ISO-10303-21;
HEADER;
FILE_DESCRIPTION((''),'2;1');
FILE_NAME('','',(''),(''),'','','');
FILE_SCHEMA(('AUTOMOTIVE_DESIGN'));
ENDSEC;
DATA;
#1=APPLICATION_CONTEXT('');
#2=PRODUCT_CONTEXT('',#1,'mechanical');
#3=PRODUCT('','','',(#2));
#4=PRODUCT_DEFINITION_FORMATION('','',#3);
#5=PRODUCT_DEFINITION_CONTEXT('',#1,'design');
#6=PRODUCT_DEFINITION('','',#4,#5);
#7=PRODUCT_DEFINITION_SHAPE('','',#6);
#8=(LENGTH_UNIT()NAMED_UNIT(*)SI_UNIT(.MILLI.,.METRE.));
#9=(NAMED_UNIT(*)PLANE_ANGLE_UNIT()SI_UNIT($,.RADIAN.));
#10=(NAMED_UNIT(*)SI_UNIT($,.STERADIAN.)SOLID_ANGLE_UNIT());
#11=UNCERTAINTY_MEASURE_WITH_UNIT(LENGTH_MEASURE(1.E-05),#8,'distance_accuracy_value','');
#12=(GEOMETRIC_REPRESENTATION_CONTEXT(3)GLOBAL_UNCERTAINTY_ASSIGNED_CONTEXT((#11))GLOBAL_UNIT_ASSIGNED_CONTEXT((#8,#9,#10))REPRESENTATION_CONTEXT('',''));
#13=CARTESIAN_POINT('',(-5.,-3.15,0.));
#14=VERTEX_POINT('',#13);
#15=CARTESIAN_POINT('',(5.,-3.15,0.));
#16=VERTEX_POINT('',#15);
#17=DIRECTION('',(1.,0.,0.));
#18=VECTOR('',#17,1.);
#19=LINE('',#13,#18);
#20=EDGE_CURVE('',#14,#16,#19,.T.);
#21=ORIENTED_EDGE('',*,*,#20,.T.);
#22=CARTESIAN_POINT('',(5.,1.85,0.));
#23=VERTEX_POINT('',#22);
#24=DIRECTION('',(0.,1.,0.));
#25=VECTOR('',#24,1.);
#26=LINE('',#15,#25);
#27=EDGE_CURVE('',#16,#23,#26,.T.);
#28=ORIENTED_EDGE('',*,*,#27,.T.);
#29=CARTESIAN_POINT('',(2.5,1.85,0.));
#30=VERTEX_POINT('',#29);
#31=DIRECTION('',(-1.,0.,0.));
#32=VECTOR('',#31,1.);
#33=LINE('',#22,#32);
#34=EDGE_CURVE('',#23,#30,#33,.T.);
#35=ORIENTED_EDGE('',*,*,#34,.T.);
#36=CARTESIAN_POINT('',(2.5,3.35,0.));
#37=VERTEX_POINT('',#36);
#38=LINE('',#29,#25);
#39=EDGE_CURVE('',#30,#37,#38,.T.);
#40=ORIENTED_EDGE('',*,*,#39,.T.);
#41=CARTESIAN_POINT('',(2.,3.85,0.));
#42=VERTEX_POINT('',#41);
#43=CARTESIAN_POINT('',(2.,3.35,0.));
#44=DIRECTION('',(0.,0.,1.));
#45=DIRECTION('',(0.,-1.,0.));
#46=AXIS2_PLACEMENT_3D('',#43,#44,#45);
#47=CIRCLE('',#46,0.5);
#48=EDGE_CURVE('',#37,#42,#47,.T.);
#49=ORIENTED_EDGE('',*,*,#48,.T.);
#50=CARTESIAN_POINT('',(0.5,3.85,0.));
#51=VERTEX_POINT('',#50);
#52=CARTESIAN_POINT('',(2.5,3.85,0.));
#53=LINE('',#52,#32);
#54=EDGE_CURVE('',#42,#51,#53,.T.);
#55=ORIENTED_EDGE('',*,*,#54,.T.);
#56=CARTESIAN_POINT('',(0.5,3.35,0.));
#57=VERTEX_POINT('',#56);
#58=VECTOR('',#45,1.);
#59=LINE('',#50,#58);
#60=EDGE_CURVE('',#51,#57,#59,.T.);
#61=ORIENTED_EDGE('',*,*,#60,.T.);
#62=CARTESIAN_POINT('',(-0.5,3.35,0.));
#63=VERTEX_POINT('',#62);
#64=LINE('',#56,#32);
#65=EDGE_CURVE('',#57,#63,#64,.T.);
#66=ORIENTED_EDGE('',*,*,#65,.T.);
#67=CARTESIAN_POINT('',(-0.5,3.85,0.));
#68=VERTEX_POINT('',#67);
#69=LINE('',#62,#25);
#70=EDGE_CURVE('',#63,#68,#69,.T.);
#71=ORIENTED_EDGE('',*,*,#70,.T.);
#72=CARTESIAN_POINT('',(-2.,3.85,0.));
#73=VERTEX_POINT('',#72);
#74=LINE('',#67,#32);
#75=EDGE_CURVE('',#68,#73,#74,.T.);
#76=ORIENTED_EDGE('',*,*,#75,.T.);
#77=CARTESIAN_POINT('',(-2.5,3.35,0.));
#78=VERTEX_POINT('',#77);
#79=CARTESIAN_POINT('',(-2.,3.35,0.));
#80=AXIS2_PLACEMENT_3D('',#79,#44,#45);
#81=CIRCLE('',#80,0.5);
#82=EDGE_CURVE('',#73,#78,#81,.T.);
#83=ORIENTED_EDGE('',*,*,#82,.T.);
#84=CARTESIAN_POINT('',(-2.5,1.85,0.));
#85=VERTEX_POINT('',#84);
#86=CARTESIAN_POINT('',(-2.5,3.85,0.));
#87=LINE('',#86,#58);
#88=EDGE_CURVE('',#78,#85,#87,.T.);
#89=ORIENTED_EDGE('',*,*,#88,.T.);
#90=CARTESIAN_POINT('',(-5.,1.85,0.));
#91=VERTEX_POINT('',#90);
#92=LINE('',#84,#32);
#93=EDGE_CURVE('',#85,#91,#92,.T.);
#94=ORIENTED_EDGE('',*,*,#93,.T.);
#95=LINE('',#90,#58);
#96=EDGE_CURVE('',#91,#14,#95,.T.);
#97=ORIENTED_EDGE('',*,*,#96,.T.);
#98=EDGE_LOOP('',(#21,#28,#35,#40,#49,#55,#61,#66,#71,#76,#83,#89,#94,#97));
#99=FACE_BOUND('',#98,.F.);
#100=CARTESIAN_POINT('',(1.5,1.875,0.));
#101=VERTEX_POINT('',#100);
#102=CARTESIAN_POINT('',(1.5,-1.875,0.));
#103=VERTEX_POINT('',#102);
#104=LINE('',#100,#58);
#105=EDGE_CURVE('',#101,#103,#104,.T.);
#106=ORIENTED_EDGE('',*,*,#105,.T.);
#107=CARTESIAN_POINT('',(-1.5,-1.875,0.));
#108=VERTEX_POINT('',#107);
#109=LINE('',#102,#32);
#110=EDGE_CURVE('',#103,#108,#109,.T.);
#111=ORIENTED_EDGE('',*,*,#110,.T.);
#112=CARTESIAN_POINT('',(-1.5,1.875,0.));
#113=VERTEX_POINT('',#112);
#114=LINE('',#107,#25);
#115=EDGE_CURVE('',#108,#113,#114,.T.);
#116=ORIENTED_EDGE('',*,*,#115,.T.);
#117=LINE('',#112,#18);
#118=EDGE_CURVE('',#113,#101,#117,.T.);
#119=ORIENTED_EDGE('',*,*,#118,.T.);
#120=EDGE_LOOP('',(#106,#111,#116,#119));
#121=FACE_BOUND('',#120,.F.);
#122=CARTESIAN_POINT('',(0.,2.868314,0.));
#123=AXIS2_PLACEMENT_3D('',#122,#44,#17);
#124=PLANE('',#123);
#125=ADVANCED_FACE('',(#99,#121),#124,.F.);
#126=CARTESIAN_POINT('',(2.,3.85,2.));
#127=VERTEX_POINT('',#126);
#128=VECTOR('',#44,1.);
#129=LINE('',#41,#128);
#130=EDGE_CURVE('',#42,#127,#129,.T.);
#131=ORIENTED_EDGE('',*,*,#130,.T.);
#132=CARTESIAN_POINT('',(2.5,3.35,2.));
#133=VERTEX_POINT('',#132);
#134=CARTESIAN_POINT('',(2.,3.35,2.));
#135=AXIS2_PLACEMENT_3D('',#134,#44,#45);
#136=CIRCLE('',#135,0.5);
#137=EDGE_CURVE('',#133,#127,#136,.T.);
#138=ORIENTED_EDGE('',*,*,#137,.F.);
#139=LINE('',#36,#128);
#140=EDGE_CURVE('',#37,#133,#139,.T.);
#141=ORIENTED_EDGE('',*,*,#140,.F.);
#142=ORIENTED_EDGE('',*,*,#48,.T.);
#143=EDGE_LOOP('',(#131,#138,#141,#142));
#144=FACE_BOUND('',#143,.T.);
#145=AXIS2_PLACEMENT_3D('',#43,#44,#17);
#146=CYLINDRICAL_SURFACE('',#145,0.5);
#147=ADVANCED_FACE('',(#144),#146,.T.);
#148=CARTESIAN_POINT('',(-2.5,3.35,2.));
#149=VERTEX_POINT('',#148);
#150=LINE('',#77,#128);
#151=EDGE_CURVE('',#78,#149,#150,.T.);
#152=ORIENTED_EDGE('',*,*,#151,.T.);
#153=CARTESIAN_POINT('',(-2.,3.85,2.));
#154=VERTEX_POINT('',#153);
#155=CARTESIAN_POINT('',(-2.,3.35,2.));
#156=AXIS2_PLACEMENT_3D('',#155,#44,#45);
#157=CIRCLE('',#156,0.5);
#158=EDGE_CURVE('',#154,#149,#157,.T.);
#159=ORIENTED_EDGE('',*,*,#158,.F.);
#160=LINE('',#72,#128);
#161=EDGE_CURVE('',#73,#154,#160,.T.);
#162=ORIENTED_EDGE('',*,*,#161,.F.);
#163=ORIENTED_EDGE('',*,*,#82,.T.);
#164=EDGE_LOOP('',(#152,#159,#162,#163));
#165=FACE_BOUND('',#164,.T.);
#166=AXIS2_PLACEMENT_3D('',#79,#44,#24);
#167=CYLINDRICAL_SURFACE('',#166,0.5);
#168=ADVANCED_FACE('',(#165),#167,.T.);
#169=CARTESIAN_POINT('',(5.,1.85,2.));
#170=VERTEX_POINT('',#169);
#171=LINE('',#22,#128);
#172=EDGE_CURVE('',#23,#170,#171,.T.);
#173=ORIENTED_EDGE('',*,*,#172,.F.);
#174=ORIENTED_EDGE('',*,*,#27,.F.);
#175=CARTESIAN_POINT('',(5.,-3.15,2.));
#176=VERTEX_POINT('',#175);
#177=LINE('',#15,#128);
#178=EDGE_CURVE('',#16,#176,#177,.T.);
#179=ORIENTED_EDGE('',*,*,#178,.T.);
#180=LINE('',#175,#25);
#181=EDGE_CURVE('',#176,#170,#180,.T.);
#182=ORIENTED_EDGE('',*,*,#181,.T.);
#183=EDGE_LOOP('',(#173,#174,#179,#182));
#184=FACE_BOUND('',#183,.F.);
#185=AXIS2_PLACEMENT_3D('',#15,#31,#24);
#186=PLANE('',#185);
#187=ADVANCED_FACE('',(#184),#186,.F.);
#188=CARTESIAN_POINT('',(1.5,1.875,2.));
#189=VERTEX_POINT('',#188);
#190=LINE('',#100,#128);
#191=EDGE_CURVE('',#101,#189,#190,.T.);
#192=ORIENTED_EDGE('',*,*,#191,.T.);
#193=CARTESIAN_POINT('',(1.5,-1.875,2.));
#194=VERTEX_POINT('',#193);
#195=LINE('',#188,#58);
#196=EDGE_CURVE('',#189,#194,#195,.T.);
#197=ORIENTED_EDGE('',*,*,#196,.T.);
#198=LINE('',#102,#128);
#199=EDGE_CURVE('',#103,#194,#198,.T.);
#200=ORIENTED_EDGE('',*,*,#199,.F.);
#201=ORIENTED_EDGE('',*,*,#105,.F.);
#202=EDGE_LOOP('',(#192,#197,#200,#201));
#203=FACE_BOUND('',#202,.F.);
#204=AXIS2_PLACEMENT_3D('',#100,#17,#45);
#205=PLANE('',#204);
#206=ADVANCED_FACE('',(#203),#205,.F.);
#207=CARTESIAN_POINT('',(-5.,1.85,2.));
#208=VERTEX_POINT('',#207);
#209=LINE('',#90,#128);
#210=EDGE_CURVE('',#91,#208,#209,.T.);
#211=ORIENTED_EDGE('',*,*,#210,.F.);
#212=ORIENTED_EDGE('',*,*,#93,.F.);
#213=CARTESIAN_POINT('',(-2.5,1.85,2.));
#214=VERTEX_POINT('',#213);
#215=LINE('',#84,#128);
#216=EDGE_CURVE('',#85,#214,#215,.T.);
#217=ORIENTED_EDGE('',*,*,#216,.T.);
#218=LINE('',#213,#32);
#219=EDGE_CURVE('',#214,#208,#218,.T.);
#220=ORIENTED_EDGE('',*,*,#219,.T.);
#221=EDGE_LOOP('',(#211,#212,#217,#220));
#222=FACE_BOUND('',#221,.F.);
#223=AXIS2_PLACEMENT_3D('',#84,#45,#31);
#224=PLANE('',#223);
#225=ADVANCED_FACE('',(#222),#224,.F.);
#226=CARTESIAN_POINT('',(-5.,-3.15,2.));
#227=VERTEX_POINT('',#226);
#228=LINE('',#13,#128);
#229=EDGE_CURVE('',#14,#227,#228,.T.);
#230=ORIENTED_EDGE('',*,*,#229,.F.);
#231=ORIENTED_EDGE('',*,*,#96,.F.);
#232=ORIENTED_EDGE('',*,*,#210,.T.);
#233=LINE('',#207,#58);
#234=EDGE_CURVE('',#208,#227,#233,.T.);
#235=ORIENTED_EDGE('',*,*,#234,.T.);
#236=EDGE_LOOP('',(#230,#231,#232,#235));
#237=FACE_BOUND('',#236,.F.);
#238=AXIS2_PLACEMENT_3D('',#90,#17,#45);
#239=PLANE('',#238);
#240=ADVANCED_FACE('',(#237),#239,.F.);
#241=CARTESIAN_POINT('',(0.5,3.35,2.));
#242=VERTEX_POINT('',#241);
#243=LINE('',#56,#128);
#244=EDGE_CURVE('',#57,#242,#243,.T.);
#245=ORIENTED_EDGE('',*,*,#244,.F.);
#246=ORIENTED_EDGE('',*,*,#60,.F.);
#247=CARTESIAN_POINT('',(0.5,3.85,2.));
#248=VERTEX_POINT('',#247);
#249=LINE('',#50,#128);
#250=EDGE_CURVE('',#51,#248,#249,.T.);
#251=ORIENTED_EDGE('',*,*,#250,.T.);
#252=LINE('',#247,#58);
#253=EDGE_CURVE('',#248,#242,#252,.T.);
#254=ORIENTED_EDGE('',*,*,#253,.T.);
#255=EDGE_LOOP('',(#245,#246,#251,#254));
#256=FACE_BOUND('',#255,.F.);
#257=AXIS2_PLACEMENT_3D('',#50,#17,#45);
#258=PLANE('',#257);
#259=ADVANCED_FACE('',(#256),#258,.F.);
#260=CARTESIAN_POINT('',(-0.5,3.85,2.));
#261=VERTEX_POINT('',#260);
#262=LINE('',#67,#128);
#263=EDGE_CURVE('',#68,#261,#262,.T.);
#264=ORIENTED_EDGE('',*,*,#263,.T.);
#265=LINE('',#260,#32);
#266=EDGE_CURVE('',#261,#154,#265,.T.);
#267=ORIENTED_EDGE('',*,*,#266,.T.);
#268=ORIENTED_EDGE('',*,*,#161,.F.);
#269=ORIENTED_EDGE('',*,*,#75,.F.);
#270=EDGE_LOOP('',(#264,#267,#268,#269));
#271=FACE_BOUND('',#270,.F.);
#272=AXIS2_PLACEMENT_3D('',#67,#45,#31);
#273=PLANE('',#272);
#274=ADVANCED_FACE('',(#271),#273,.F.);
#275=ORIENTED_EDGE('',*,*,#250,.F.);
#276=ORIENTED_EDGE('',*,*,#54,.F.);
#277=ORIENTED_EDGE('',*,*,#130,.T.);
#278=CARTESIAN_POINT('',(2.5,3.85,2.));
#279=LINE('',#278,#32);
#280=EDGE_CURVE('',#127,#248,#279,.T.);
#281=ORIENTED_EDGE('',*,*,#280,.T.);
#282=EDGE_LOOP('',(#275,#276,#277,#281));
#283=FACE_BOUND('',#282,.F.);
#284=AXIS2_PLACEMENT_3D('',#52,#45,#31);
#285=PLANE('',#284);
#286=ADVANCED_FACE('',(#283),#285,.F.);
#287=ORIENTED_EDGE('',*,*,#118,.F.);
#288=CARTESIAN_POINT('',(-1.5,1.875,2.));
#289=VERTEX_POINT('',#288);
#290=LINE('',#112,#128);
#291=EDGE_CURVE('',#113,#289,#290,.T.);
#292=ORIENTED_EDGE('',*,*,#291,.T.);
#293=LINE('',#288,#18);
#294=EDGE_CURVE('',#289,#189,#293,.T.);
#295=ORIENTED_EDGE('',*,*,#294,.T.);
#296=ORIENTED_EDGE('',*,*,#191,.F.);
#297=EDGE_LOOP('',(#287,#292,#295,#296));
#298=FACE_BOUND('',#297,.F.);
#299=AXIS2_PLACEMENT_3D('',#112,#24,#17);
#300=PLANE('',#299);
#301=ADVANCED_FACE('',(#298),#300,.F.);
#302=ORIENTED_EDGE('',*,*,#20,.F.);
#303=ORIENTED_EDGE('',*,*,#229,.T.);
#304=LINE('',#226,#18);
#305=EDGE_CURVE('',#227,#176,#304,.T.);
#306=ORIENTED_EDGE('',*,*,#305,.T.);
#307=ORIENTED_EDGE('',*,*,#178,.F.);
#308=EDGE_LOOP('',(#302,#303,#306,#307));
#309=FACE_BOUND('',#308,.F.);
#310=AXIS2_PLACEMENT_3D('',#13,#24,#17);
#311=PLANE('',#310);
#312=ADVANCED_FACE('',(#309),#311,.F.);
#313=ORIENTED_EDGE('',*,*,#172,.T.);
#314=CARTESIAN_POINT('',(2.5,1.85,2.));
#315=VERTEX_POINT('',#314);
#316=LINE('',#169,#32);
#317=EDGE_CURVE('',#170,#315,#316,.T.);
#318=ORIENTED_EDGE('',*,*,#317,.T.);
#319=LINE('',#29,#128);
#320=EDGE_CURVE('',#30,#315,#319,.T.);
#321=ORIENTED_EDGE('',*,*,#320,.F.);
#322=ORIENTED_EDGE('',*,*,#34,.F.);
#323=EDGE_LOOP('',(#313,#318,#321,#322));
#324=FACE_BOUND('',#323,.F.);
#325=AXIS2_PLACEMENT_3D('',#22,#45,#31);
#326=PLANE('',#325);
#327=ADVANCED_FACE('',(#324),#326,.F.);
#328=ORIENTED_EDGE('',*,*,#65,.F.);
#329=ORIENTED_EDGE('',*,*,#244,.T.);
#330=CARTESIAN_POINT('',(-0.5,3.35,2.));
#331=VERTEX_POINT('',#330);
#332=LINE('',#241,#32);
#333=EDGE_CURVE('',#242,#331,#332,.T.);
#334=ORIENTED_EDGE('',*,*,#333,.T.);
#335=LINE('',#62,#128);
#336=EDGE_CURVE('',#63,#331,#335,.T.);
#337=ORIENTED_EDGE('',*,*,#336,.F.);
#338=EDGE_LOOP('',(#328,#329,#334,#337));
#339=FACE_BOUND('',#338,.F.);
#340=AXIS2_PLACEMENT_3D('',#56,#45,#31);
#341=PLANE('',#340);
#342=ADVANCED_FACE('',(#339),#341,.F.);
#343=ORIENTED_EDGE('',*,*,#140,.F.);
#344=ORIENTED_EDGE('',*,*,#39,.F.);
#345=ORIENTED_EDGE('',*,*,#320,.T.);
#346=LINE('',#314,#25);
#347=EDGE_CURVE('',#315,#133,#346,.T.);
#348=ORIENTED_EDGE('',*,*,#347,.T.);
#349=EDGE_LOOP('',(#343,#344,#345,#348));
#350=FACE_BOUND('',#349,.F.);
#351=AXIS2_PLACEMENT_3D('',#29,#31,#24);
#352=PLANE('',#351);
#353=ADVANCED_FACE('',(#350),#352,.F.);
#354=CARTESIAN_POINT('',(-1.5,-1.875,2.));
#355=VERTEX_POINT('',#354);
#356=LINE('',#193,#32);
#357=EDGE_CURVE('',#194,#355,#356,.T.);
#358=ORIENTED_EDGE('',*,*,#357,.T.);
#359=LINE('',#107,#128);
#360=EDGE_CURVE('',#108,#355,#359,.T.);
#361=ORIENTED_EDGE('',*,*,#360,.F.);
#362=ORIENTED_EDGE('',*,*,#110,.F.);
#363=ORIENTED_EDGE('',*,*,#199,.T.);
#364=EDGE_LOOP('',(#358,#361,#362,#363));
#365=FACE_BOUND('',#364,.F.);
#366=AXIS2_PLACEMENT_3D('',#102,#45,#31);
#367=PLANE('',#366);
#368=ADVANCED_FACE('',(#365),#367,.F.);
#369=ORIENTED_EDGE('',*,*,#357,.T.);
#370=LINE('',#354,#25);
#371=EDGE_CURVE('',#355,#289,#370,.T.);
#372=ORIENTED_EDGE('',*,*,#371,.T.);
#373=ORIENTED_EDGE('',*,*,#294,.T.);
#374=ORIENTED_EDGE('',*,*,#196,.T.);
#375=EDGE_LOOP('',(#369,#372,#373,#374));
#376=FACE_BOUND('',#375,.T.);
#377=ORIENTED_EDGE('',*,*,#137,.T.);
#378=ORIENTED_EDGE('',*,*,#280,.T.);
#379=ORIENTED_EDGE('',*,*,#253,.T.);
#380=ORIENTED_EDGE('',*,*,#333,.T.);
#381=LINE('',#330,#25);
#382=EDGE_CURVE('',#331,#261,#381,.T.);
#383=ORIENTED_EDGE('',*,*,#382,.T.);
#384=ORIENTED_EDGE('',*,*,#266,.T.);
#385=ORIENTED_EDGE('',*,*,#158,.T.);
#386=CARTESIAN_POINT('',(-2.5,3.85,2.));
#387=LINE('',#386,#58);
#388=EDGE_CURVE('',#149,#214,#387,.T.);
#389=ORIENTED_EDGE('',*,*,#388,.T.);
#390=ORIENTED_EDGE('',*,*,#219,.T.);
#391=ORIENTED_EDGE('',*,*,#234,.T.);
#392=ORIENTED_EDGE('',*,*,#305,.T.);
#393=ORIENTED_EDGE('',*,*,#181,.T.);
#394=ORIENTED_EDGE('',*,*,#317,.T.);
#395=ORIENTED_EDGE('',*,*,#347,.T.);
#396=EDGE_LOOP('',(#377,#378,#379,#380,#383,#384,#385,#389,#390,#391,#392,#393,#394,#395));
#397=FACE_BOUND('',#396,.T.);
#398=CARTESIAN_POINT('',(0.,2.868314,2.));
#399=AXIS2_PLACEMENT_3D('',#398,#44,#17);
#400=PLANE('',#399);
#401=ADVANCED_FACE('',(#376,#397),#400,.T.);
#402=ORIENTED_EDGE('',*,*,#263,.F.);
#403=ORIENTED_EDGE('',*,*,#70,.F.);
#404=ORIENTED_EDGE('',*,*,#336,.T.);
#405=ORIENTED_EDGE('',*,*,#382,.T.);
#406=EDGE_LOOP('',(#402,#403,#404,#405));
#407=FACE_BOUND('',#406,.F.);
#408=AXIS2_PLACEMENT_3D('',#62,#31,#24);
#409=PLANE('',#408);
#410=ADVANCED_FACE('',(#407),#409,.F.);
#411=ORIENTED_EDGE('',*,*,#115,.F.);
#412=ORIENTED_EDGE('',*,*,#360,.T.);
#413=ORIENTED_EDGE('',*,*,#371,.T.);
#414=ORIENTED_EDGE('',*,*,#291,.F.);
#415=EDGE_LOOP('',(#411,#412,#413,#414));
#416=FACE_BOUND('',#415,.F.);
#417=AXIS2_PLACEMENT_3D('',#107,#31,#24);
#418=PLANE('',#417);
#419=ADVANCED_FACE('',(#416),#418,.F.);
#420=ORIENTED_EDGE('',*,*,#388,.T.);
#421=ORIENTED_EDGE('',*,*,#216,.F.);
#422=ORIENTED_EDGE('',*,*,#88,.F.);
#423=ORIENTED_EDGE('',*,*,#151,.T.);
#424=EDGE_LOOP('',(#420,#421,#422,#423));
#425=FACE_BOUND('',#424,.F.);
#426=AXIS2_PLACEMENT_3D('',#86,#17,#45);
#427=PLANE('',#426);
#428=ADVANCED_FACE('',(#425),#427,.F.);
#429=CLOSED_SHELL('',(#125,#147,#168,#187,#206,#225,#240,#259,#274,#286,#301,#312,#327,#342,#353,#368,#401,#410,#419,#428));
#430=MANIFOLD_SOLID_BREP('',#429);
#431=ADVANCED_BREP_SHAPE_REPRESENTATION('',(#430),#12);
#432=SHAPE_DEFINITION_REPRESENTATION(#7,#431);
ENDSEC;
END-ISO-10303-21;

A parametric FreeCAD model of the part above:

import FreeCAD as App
import Part
import Sketcher
from FreeCAD import Vector
Q = App.Units.Quantity


def edges_at(feature, points):
    """Names of the edges that pass closest to the given points."""
    edges = feature.Shape.Edges
    near = lambda p: min(range(len(edges)), key=lambda i: edges[i].distToShape(Part.Vertex(*p))[0])
    return sorted({f"Edge{near(p) + 1}" for p in points})


def add_polygon(sketch, points):
    """Adds a closed chain of lines whose ends are joined by coincident constraints."""
    first, n = sketch.GeometryCount, len(points)
    for a, b in zip(points, points[1:] + points[:1]):
        sketch.addGeometry(Part.LineSegment(App.Vector(*a, 0), App.Vector(*b, 0)), False)
    for i in range(n):
        sketch.addConstraint(Sketcher.Constraint("Coincident", first + i, 2, first + (i + 1) % n, 1))

doc = App.newDocument("Part")
params = doc.addObject("Spreadsheet::Sheet", "Params")
for row, (alias, value) in enumerate([
    ("sketch1_width", "2 mm"),
    ("sketch1_width2", "1 mm"),
    ("sketch1_width3", "10 mm"),
    ("sketch1_width4", "3 mm"),
    ("sketch1_height", "5 mm"),
    ("pad1_length", "2 mm"),
    ("fillet_radius", "0.5 mm"),
], start=1):
    params.set(f"A{row}", alias)
    params.set(f"B{row}", "=" + value)
    params.setAlias(f"B{row}", alias)

body = doc.addObject("PartDesign::Body", "Body")

# Sketch on XY plane
sketch1 = doc.addObject("Sketcher::SketchObject", "Sketch")
body.addObject(sketch1)
sketch1.AttachmentSupport = (doc.XY_Plane, [""])
sketch1.MapMode = "FlatFace"
add_polygon(sketch1, [(2.5, 1.85), (2.5, 3.85), (0.5, 3.85), (0.5, 3.35), (-0.5, 3.35), (-0.5, 3.85), (-2.5, 3.85), (-2.5, 1.85), (-5, 1.85), (-5, -3.15), (5, -3.15), (5, 1.85)])  # lines 0-11
add_polygon(sketch1, [(1.5, 1.875), (1.5, -1.875), (-1.5, -1.875), (-1.5, 1.875)])  # lines 12-15
sketch1.addConstraint(Sketcher.Constraint("Vertical", 0))
sketch1.addConstraint(Sketcher.Constraint("Horizontal", 1))
sketch1.addConstraint(Sketcher.Constraint("Vertical", 2))
sketch1.addConstraint(Sketcher.Constraint("Horizontal", 3))
sketch1.addConstraint(Sketcher.Constraint("Vertical", 4))
sketch1.addConstraint(Sketcher.Constraint("Horizontal", 5))
sketch1.addConstraint(Sketcher.Constraint("Vertical", 6))
sketch1.addConstraint(Sketcher.Constraint("Horizontal", 7))
sketch1.addConstraint(Sketcher.Constraint("Vertical", 8))
sketch1.addConstraint(Sketcher.Constraint("Horizontal", 9))
sketch1.addConstraint(Sketcher.Constraint("Vertical", 10))
sketch1.addConstraint(Sketcher.Constraint("Horizontal", 11))
sketch1.addConstraint(Sketcher.Constraint("Vertical", 12))
sketch1.addConstraint(Sketcher.Constraint("Horizontal", 13))
sketch1.addConstraint(Sketcher.Constraint("Vertical", 14))
sketch1.addConstraint(Sketcher.Constraint("Horizontal", 15))
sketch1.addConstraint(Sketcher.Constraint("Symmetric", 12, 2, 14, 2, -1, 1))
sketch1.addConstraint(Sketcher.Constraint("Symmetric", 1, 2, 4, 2, -2))
sketch1.addConstraint(Sketcher.Constraint("Symmetric", 7, 2, 10, 2, -2))
sketch1.addConstraint(Sketcher.Constraint("Equal", 1, 5))
sketch1.addConstraint(Sketcher.Constraint("Equal", 5, 0))
sketch1.addConstraint(Sketcher.Constraint("DistanceX", 1, 2, 1, 1, Q("2 mm")))
sketch1.addConstraint(Sketcher.Constraint("DistanceX", 3, 2, 3, 1, Q("1 mm")))
sketch1.addConstraint(Sketcher.Constraint("DistanceX", 9, 1, 9, 2, Q("10 mm")))
sketch1.addConstraint(Sketcher.Constraint("DistanceX", 13, 2, 13, 1, Q("3 mm")))
sketch1.addConstraint(Sketcher.Constraint("DistanceY", 8, 2, 8, 1, Q("5 mm")))
sketch1.addConstraint(Sketcher.Constraint("DistanceY", 2, 2, 2, 1, Q("0.5 mm")))
sketch1.addConstraint(Sketcher.Constraint("DistanceY", 12, 2, 12, 1, Q("3.75 mm")))
sketch1.addConstraint(Sketcher.Constraint("DistanceY", -1, 1, 0, 2, Q("3.85 mm")))
sketch1.setExpression("Constraints[37]", "Params.sketch1_width")
sketch1.setExpression("Constraints[38]", "Params.sketch1_width2")
sketch1.setExpression("Constraints[39]", "Params.sketch1_width3")
sketch1.setExpression("Constraints[40]", "Params.sketch1_width4")
sketch1.setExpression("Constraints[41]", "Params.sketch1_height")
pad1 = doc.addObject("PartDesign::Pad", "Pad")
body.addObject(pad1)
pad1.Profile = sketch1
pad1.setExpression("Length", "Params.pad1_length")
doc.recompute()

fillet = doc.addObject("PartDesign::Fillet", "Fillet")
body.addObject(fillet)
fillet.Base = (pad1, edges_at(pad1, [(-2.5, 3.85, 1), (2.5, 3.85, 1)]))
fillet.setExpression("Radius", "Params.fillet_radius")

doc.recompute()
